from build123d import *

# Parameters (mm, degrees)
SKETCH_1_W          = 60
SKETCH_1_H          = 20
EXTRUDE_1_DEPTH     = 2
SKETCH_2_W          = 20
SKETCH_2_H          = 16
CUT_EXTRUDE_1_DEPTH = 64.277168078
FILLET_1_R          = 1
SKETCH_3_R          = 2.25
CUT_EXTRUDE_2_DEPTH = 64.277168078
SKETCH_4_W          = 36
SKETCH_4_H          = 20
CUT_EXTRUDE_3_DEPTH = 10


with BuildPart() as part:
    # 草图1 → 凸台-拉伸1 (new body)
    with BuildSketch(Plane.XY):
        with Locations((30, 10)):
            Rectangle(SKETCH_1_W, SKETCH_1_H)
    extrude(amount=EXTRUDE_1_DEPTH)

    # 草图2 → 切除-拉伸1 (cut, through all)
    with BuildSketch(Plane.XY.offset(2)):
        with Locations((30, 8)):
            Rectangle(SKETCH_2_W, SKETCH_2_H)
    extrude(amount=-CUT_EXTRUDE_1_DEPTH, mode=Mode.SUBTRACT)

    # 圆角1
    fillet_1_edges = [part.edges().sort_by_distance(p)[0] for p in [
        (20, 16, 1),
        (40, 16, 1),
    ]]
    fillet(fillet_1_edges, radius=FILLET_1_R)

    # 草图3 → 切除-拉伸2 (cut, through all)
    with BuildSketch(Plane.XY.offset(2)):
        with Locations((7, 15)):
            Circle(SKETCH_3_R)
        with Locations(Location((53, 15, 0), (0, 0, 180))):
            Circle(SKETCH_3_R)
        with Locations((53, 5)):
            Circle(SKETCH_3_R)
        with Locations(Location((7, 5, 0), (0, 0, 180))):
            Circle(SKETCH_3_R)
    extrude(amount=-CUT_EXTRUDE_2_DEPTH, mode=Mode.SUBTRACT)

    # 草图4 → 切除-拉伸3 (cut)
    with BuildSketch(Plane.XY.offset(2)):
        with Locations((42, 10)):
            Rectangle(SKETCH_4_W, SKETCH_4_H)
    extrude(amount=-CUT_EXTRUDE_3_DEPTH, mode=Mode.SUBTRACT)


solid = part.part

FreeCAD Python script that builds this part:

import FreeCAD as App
import Part
import Sketcher
from FreeCAD import Vector
Q = App.Units.Quantity


def edges_at(feature, points):
    """Names of the edges that pass closest to the given points."""
    edges = feature.Shape.Edges
    near = lambda p: min(range(len(edges)), key=lambda i: edges[i].distToShape(Part.Vertex(*p))[0])
    return sorted({f"Edge{near(p) + 1}" for p in points})

doc = App.newDocument("Part")
body = doc.addObject("PartDesign::Body", "Body")

# Sketch on XY plane
sketch1 = doc.addObject("Sketcher::SketchObject", "Sketch")
body.addObject(sketch1)
sketch1.AttachmentSupport = (doc.XY_Plane, [""])
sketch1.MapMode = "FlatFace"
sketch1.addGeometry(Part.LineSegment(Vector(0, 20, 0), Vector(0, 0, 0)), False)
sketch1.addGeometry(Part.LineSegment(Vector(0, 0, 0), Vector(60, 0, 0)), False)
sketch1.addGeometry(Part.LineSegment(Vector(60, 0, 0), Vector(60, 20, 0)), False)
sketch1.addGeometry(Part.LineSegment(Vector(60, 20, 0), Vector(0, 20, 0)), False)
sketch1.addConstraint(Sketcher.Constraint("Coincident", 0, 2, 1, 1))
sketch1.addConstraint(Sketcher.Constraint("Coincident", 1, 2, 2, 1))
sketch1.addConstraint(Sketcher.Constraint("Coincident", 2, 2, 3, 1))
sketch1.addConstraint(Sketcher.Constraint("Coincident", 3, 2, 0, 1))
sketch1.addConstraint(Sketcher.Constraint("Vertical", 0))
sketch1.addConstraint(Sketcher.Constraint("Horizontal", 1))
sketch1.addConstraint(Sketcher.Constraint("Vertical", 2))
sketch1.addConstraint(Sketcher.Constraint("Horizontal", 3))
sketch1.addConstraint(Sketcher.Constraint("Coincident", 0, 2, -1, 1))
sketch1.addConstraint(Sketcher.Constraint("DistanceX", 1, 1, 1, 2, Q("60 mm")))
sketch1.addConstraint(Sketcher.Constraint("DistanceY", 0, 2, 0, 1, Q("20 mm")))
pad1 = doc.addObject("PartDesign::Pad", "Pad")
body.addObject(pad1)
pad1.Profile = sketch1
pad1.Length = 2

# Sketch on XY plane
sketch2 = doc.addObject("Sketcher::SketchObject", "Sketch001")
body.addObject(sketch2)
sketch2.AttachmentSupport = (doc.XY_Plane, [""])
sketch2.MapMode = "FlatFace"
sketch2.AttachmentOffset = App.Placement(Vector(0, 0, 2), App.Rotation())
sketch2.addGeometry(Part.LineSegment(Vector(20, 16, 0), Vector(20, 0, 0)), False)
sketch2.addGeometry(Part.LineSegment(Vector(20, 0, 0), Vector(40, 0, 0)), False)
sketch2.addGeometry(Part.LineSegment(Vector(40, 0, 0), Vector(40, 16, 0)), False)
sketch2.addGeometry(Part.LineSegment(Vector(40, 16, 0), Vector(20, 16, 0)), False)
sketch2.addConstraint(Sketcher.Constraint("Coincident", 0, 2, 1, 1))
sketch2.addConstraint(Sketcher.Constraint("Coincident", 1, 2, 2, 1))
sketch2.addConstraint(Sketcher.Constraint("Coincident", 2, 2, 3, 1))
sketch2.addConstraint(Sketcher.Constraint("Coincident", 3, 2, 0, 1))
sketch2.addConstraint(Sketcher.Constraint("Vertical", 0))
sketch2.addConstraint(Sketcher.Constraint("Horizontal", 1))
sketch2.addConstraint(Sketcher.Constraint("Vertical", 2))
sketch2.addConstraint(Sketcher.Constraint("Horizontal", 3))
sketch2.addConstraint(Sketcher.Constraint("PointOnObject", 0, 2, -1))
sketch2.addConstraint(Sketcher.Constraint("DistanceX", 1, 1, 1, 2, Q("20 mm")))
sketch2.addConstraint(Sketcher.Constraint("DistanceY", 0, 2, 0, 1, Q("16 mm")))
sketch2.addConstraint(Sketcher.Constraint("DistanceX", -1, 1, 0, 2, Q("20 mm")))
pocket1 = doc.addObject("PartDesign::Pocket", "Pocket")
body.addObject(pocket1)
pocket1.Profile = sketch2
pocket1.Type = "ThroughAll"
doc.recompute()

fillet = doc.addObject("PartDesign::Fillet", "Fillet")
body.addObject(fillet)
fillet.Base = (pocket1, edges_at(pocket1, [(20, 16, 1), (40, 16, 1)]))
fillet.Radius = 1

# Sketch on XY plane
sketch3 = doc.addObject("Sketcher::SketchObject", "Sketch002")
body.addObject(sketch3)
sketch3.AttachmentSupport = (doc.XY_Plane, [""])
sketch3.MapMode = "FlatFace"
sketch3.AttachmentOffset = App.Placement(Vector(0, 0, 2), App.Rotation())
sketch3.addGeometry(Part.Circle(Vector(7, 15, 0), Vector(0, 0, 1), 2.2), False)
sketch3.addGeometry(Part.Circle(Vector(53, 15, 0), Vector(0, 0, 1), 2.2), False)
sketch3.addGeometry(Part.Circle(Vector(53, 5, 0), Vector(0, 0, 1), 2.2), False)
sketch3.addGeometry(Part.Circle(Vector(7, 5, 0), Vector(0, 0, 1), 2.2), False)
sketch3.addConstraint(Sketcher.Constraint("Equal", 0, 1))
sketch3.addConstraint(Sketcher.Constraint("Equal", 1, 2))
sketch3.addConstraint(Sketcher.Constraint("Equal", 2, 3))
sketch3.addConstraint(Sketcher.Constraint("Horizontal", 0, 3, 1, 3))
sketch3.addConstraint(Sketcher.Constraint("Horizontal", 2, 3, 3, 3))
sketch3.addConstraint(Sketcher.Constraint("Vertical", 1, 3, 2, 3))
sketch3.addConstraint(Sketcher.Constraint("Vertical", 0, 3, 3, 3))
sketch3.addConstraint(Sketcher.Constraint("Diameter", 0, Q("4.5 mm")))
sketch3.addConstraint(Sketcher.Constraint("DistanceX", -1, 1, 0, 3, Q("7 mm")))
sketch3.addConstraint(Sketcher.Constraint("DistanceY", -1, 1, 0, 3, Q("15 mm")))
sketch3.addConstraint(Sketcher.Constraint("DistanceX", -1, 1, 1, 3, Q("53 mm")))
sketch3.addConstraint(Sketcher.Constraint("DistanceY", -1, 1, 2, 3, Q("5 mm")))
pocket2 = doc.addObject("PartDesign::Pocket", "Pocket001")
body.addObject(pocket2)
pocket2.Profile = sketch3
pocket2.Type = "ThroughAll"

# Sketch on XY plane
sketch4 = doc.addObject("Sketcher::SketchObject", "Sketch003")
body.addObject(sketch4)
sketch4.AttachmentSupport = (doc.XY_Plane, [""])
sketch4.MapMode = "FlatFace"
sketch4.AttachmentOffset = App.Placement(Vector(0, 0, 2), App.Rotation())
sketch4.addGeometry(Part.LineSegment(Vector(24, 20, 0), Vector(24, 0, 0)), False)
sketch4.addGeometry(Part.LineSegment(Vector(24, 0, 0), Vector(60, 0, 0)), False)
sketch4.addGeometry(Part.LineSegment(Vector(60, 0, 0), Vector(60, 20, 0)), False)
sketch4.addGeometry(Part.LineSegment(Vector(60, 20, 0), Vector(24, 20, 0)), False)
sketch4.addConstraint(Sketcher.Constraint("Coincident", 0, 2, 1, 1))
sketch4.addConstraint(Sketcher.Constraint("Coincident", 1, 2, 2, 1))
sketch4.addConstraint(Sketcher.Constraint("Coincident", 2, 2, 3, 1))
sketch4.addConstraint(Sketcher.Constraint("Coincident", 3, 2, 0, 1))
sketch4.addConstraint(Sketcher.Constraint("Vertical", 0))
sketch4.addConstraint(Sketcher.Constraint("Horizontal", 1))
sketch4.addConstraint(Sketcher.Constraint("Vertical", 2))
sketch4.addConstraint(Sketcher.Constraint("Horizontal", 3))
sketch4.addConstraint(Sketcher.Constraint("PointOnObject", 0, 2, -1))
sketch4.addConstraint(Sketcher.Constraint("DistanceX", 1, 1, 1, 2, Q("36 mm")))
sketch4.addConstraint(Sketcher.Constraint("DistanceY", 0, 2, 0, 1, Q("20 mm")))
sketch4.addConstraint(Sketcher.Constraint("DistanceX", -1, 1, 0, 2, Q("24 mm")))
pocket3 = doc.addObject("PartDesign::Pocket", "Pocket002")
body.addObject(pocket3)
pocket3.Profile = sketch4
pocket3.Length = 10

doc.recompute()
